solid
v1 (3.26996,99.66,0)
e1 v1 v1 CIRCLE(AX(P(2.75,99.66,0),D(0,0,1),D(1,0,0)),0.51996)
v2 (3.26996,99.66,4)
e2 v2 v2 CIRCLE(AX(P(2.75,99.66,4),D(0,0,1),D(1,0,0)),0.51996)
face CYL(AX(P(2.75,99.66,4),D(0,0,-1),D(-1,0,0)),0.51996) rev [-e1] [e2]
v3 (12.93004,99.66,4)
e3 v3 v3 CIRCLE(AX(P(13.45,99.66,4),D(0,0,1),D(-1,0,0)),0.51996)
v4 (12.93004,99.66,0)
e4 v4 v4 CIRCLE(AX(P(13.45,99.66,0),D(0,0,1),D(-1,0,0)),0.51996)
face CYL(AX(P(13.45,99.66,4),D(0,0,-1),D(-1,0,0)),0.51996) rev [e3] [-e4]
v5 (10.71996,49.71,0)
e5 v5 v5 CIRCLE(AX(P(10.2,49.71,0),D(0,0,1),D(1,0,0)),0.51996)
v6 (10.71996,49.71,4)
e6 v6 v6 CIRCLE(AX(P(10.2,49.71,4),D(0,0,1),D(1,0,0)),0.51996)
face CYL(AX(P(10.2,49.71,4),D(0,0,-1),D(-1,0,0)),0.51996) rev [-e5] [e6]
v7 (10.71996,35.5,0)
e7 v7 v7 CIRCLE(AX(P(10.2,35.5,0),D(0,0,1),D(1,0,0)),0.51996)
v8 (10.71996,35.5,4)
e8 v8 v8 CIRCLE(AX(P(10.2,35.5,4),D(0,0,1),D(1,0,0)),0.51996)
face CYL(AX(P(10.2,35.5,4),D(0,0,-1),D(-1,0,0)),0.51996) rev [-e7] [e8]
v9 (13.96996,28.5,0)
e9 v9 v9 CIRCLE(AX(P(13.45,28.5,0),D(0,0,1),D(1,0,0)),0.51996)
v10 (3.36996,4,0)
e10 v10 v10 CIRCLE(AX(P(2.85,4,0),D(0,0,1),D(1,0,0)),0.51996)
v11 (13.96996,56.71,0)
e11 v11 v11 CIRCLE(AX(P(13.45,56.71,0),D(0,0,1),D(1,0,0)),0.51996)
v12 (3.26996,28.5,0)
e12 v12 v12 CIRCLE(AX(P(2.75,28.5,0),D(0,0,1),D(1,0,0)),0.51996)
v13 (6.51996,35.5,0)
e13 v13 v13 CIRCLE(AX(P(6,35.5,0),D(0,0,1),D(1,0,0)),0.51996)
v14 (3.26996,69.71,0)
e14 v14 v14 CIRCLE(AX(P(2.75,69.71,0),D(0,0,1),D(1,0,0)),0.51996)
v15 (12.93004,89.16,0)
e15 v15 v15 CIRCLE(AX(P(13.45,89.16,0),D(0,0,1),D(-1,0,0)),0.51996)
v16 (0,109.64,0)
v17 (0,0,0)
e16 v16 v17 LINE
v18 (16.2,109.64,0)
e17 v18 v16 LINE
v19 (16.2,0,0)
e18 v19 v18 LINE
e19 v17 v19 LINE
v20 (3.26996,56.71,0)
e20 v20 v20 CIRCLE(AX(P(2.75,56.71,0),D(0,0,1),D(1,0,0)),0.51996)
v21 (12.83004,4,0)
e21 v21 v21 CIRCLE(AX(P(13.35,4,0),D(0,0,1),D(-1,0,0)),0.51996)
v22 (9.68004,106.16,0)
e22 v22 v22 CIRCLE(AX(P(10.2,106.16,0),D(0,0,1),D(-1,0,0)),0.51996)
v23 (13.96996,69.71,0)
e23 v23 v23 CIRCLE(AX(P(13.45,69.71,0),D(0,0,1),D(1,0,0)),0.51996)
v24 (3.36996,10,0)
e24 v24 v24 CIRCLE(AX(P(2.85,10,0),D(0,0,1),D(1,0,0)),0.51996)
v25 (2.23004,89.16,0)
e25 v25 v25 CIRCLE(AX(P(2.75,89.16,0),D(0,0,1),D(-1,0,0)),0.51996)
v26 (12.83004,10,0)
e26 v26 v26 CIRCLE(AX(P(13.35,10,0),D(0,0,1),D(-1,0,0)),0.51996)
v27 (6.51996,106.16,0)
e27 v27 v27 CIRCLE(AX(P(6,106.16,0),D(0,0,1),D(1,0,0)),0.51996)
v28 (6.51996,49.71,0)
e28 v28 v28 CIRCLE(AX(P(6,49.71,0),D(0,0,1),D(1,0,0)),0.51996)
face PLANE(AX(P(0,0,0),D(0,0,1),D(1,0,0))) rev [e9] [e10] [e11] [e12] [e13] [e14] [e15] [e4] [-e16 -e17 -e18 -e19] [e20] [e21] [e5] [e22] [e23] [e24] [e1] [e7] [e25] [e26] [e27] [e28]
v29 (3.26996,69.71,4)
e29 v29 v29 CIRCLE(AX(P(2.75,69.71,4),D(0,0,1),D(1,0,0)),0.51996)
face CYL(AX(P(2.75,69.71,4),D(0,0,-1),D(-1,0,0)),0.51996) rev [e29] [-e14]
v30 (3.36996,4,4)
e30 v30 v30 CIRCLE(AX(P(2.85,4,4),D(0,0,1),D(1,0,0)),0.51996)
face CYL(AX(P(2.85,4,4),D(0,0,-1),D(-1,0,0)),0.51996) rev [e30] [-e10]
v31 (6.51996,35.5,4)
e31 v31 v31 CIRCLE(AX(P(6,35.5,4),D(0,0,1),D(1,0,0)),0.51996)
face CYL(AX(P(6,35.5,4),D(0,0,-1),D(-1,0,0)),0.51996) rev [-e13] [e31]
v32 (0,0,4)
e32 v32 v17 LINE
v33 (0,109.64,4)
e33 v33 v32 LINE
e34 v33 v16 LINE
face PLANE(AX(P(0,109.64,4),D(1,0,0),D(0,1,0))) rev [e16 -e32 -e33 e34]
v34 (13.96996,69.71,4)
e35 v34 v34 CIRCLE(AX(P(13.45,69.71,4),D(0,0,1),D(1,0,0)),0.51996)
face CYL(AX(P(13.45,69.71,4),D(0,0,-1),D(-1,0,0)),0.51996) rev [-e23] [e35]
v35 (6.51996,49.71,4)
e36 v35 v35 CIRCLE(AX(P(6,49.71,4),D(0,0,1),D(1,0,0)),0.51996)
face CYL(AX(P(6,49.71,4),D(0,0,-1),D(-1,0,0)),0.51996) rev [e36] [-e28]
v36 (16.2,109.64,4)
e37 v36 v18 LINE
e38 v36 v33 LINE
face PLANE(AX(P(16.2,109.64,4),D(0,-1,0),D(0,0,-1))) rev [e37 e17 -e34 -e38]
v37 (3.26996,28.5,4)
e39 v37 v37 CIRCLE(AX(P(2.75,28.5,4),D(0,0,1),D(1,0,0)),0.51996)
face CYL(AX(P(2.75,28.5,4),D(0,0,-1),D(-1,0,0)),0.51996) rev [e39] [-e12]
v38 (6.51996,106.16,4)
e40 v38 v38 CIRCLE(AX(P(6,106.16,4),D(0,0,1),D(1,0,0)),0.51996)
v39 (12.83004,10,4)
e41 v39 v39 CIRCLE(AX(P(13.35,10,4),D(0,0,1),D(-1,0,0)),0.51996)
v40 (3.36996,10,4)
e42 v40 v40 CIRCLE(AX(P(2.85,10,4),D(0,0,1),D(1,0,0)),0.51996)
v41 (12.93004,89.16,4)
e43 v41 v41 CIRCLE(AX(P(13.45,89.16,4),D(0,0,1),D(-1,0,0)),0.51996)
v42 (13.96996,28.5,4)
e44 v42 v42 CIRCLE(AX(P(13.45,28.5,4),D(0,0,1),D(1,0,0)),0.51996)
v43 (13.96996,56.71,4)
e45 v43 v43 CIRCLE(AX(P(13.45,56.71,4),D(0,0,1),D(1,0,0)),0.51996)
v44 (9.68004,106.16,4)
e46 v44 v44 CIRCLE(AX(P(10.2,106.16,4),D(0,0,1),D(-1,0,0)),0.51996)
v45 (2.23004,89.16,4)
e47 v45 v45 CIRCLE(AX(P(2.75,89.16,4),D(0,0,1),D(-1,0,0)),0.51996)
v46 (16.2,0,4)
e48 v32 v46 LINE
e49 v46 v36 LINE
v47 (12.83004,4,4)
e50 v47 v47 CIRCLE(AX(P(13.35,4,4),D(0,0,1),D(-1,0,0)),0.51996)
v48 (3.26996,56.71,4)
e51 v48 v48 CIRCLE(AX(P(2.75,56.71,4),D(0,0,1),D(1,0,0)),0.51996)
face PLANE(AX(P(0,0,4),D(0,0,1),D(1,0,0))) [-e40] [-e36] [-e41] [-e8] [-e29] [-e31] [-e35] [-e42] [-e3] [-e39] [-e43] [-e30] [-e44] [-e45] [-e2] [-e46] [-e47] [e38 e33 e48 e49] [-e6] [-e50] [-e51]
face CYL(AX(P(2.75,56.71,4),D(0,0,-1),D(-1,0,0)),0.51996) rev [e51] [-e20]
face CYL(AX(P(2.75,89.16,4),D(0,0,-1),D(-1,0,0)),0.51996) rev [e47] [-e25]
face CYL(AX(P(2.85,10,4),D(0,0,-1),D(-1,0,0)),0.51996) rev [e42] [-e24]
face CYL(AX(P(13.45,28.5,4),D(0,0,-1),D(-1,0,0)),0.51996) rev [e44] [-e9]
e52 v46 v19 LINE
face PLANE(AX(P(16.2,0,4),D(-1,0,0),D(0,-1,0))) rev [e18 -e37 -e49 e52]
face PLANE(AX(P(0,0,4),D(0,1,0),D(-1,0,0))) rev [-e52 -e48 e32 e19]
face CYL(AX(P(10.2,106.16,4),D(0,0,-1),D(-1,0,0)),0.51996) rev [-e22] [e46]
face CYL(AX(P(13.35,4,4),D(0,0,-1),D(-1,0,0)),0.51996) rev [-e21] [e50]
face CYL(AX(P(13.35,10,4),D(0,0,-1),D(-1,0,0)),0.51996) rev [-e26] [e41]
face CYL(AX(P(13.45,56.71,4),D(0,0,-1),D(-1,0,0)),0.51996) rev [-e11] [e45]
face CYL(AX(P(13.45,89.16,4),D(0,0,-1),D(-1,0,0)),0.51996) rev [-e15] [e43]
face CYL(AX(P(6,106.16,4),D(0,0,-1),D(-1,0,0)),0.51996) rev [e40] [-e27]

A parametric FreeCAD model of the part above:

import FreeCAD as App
import Part
import Sketcher
from FreeCAD import Vector


def add_polygon(sketch, points):
    """Adds a closed chain of lines whose ends are joined by coincident constraints."""
    first, n = sketch.GeometryCount, len(points)
    for a, b in zip(points, points[1:] + points[:1]):
        sketch.addGeometry(Part.LineSegment(App.Vector(*a, 0), App.Vector(*b, 0)), False)
    for i in range(n):
        sketch.addConstraint(Sketcher.Constraint("Coincident", first + i, 2, first + (i + 1) % n, 1))

doc = App.newDocument("Part")
params = doc.addObject("Spreadsheet::Sheet", "Params")
for row, (alias, value) in enumerate([
    ("sketch1_width", "16.2 mm"),
    ("sketch1_height", "109.64 mm"),
    ("pad1_length", "4 mm"),
], start=1):
    params.set(f"A{row}", alias)
    params.set(f"B{row}", "=" + value)
    params.setAlias(f"B{row}", alias)

body = doc.addObject("PartDesign::Body", "Body")

# Sketch on XY plane
sketch1 = body.newObject("Sketcher::SketchObject", "Sketch")
sketch1.AttachmentSupport = (doc.getObject("XY_Plane"), [""])
sketch1.MapMode = "FlatFace"
add_polygon(sketch1, [(0, 109.64), (0, 0), (16.2, 0), (16.2, 109.64)])  # lines 0-3
sketch1.addGeometry(Part.Circle(Vector(2.85, 4, 0), Vector(0, 0, 1), 0.51996), False)  # 4
sketch1.addGeometry(Part.Circle(Vector(2.85, 10, 0), Vector(0, 0, 1), 0.51996), False)  # 5
sketch1.addGeometry(Part.Circle(Vector(2.75, 28.5, 0), Vector(0, 0, 1), 0.51996), False)  # 6
sketch1.addGeometry(Part.Circle(Vector(6, 35.5, 0), Vector(0, 0, 1), 0.51996), False)  # 7
sketch1.addGeometry(Part.Circle(Vector(6, 49.71, 0), Vector(0, 0, 1), 0.51996), False)  # 8
sketch1.addGeometry(Part.Circle(Vector(13.35, 4, 0), Vector(0, 0, 1), 0.51996), False)  # 9
sketch1.addGeometry(Part.Circle(Vector(13.35, 10, 0), Vector(0, 0, 1), 0.51996), False)  # 10
sketch1.addGeometry(Part.Circle(Vector(13.45, 28.5, 0), Vector(0, 0, 1), 0.51996), False)  # 11
sketch1.addGeometry(Part.Circle(Vector(10.2, 35.5, 0), Vector(0, 0, 1), 0.51996), False)  # 12
sketch1.addGeometry(Part.Circle(Vector(10.2, 49.71, 0), Vector(0, 0, 1), 0.51996), False)  # 13
sketch1.addGeometry(Part.Circle(Vector(2.75, 56.71, 0), Vector(0, 0, 1), 0.51996), False)  # 14
sketch1.addGeometry(Part.Circle(Vector(2.75, 69.71, 0), Vector(0, 0, 1), 0.51996), False)  # 15
sketch1.addGeometry(Part.Circle(Vector(2.75, 89.16, 0), Vector(0, 0, 1), 0.51996), False)  # 16
sketch1.addGeometry(Part.Circle(Vector(2.75, 99.66, 0), Vector(0, 0, 1), 0.51996), False)  # 17
sketch1.addGeometry(Part.Circle(Vector(6, 106.16, 0), Vector(0, 0, 1), 0.51996), False)  # 18
sketch1.addGeometry(Part.Circle(Vector(13.45, 56.71, 0), Vector(0, 0, 1), 0.51996), False)  # 19
sketch1.addGeometry(Part.Circle(Vector(13.45, 69.71, 0), Vector(0, 0, 1), 0.51996), False)  # 20
sketch1.addGeometry(Part.Circle(Vector(10.2, 106.16, 0), Vector(0, 0, 1), 0.51996), False)  # 21
sketch1.addGeometry(Part.Circle(Vector(13.45, 89.16, 0), Vector(0, 0, 1), 0.51996), False)  # 22
sketch1.addGeometry(Part.Circle(Vector(13.45, 99.66, 0), Vector(0, 0, 1), 0.51996), False)  # 23
sketch1.addConstraint([
    Sketcher.Constraint("Vertical", 0),
    Sketcher.Constraint("Horizontal", 1),
    Sketcher.Constraint("Vertical", 2),
    Sketcher.Constraint("Horizontal", 3),
    Sketcher.Constraint("Coincident", 0, 2, -1, 1),
    Sketcher.Constraint("Equal", 4, 5),
    Sketcher.Constraint("Equal", 5, 6),
    Sketcher.Constraint("Equal", 6, 7),
    Sketcher.Constraint("Equal", 7, 8),
    Sketcher.Constraint("Equal", 8, 9),
    Sketcher.Constraint("Equal", 9, 10),
    Sketcher.Constraint("Equal", 10, 11),
    Sketcher.Constraint("Equal", 11, 12),
    Sketcher.Constraint("Equal", 12, 13),
    Sketcher.Constraint("Equal", 13, 14),
    Sketcher.Constraint("Equal", 14, 15),
    Sketcher.Constraint("Equal", 15, 16),
    Sketcher.Constraint("Equal", 16, 17),
    Sketcher.Constraint("Equal", 17, 18),
    Sketcher.Constraint("Equal", 18, 19),
    Sketcher.Constraint("Equal", 19, 20),
    Sketcher.Constraint("Equal", 20, 21),
    Sketcher.Constraint("Equal", 21, 22),
    Sketcher.Constraint("Equal", 22, 23),
    Sketcher.Constraint("Horizontal", 4, 3, 9, 3),
    Sketcher.Constraint("Horizontal", 5, 3, 10, 3),
    Sketcher.Constraint("Horizontal", 6, 3, 11, 3),
    Sketcher.Constraint("Horizontal", 7, 3, 12, 3),
    Sketcher.Constraint("Horizontal", 8, 3, 13, 3),
    Sketcher.Constraint("Horizontal", 14, 3, 19, 3),
    Sketcher.Constraint("Horizontal", 15, 3, 20, 3),
    Sketcher.Constraint("Horizontal", 18, 3, 21, 3),
    Sketcher.Constraint("Horizontal", 16, 3, 22, 3),
    Sketcher.Constraint("Horizontal", 17, 3, 23, 3),
    Sketcher.Constraint("Vertical", 4, 3, 5, 3),
    Sketcher.Constraint("Vertical", 7, 3, 8, 3),
    Sketcher.Constraint("Vertical", 9, 3, 10, 3),
    Sketcher.Constraint("Vertical", 12, 3, 13, 3),
    Sketcher.Constraint("Vertical", 6, 3, 14, 3),
    Sketcher.Constraint("Vertical", 14, 3, 15, 3),
    Sketcher.Constraint("Vertical", 15, 3, 16, 3),
    Sketcher.Constraint("Vertical", 16, 3, 17, 3),
    Sketcher.Constraint("Vertical", 8, 3, 18, 3),
    Sketcher.Constraint("Vertical", 11, 3, 19, 3),
    Sketcher.Constraint("Vertical", 19, 3, 20, 3),
    Sketcher.Constraint("Vertical", 13, 3, 21, 3),
    Sketcher.Constraint("Vertical", 20, 3, 22, 3),
    Sketcher.Constraint("Vertical", 22, 3, 23, 3),
    Sketcher.Constraint("DistanceX", 1, 1, 1, 2, 16.2),
    Sketcher.Constraint("DistanceY", -1, 1, 4, 3, 4.0),
    Sketcher.Constraint("DistanceY", -1, 1, 5, 3, 10.0),
    Sketcher.Constraint("DistanceX", -1, 1, 7, 3, 6.0),
    Sketcher.Constraint("DistanceY", 6, 3, 7, 3, 7.0),
    Sketcher.Constraint("DistanceY", 8, 3, 14, 3, 7.0),
    Sketcher.Constraint("DistanceY", 14, 3, 15, 3, 13.0),
    Sketcher.Constraint("DistanceY", 16, 3, 18, 3, 17.0),
    Sketcher.Constraint("DistanceX", 21, 3, 2, 2, 6.0),
    Sketcher.Constraint("DistanceY", 0, 2, 0, 1, 109.64),
    Sketcher.Constraint("DistanceY", -1, 1, 6, 3, 28.5),
    Sketcher.Constraint("DistanceX", 6, 3, 5, 3, 0.1),
    Sketcher.Constraint("DistanceX", 4, 3, 9, 3, 10.5),
    Sketcher.Constraint("DistanceX", 6, 3, 11, 3, 10.7),
    Sketcher.Constraint("DistanceY", 16, 3, 17, 3, 10.5),
    Sketcher.Constraint("Diameter", 4, 1.03992),
    Sketcher.Constraint("DistanceX", -1, 1, 4, 3, 2.85),
    Sketcher.Constraint("DistanceY", -1, 1, 8, 3, 49.71),
    Sketcher.Constraint("DistanceY", -1, 1, 16, 3, 89.16),
])
sketch1.setExpression("Constraints[52]", "Params.sketch1_width")
sketch1.setExpression("Constraints[61]", "Params.sketch1_height")
pad1 = body.newObject("PartDesign::Pad", "Pad")
pad1.Profile = sketch1
pad1.setExpression("Length", "Params.pad1_length")

doc.recompute()
